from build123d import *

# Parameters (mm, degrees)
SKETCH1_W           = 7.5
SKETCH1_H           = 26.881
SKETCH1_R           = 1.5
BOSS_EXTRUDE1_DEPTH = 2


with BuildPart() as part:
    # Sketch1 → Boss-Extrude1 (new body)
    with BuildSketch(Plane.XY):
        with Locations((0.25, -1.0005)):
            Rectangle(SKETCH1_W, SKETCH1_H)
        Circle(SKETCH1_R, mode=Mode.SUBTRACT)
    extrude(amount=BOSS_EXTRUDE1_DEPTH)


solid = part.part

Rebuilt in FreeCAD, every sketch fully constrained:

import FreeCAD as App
import Part
import Sketcher
Q = App.Units.Quantity


def add_polygon(sketch, points):
    """Adds a closed chain of lines whose ends are joined by coincident constraints."""
    first, n = sketch.GeometryCount, len(points)
    for a, b in zip(points, points[1:] + points[:1]):
        sketch.addGeometry(Part.LineSegment(App.Vector(*a, 0), App.Vector(*b, 0)), False)
    for i in range(n):
        sketch.addConstraint(Sketcher.Constraint("Coincident", first + i, 2, first + (i + 1) % n, 1))

doc = App.newDocument("Part")
body = doc.addObject("PartDesign::Body", "Body")

sketch1 = body.newObject("Sketcher::SketchObject", "Sketch")
sketch1.AttachmentSupport = (doc.getObject("XY_Plane"), [""])
sketch1.MapMode = "FlatFace"
add_polygon(sketch1, [(-3.5, 12.4), (-3.5, -14.4), (4, -14.4), (4, 12.4)])
sketch1.addGeometry(Part.Circle(App.Vector(0, 0, 0), App.Vector(0, 0, 1), 1.5), False)
sketch1.addConstraint([
    Sketcher.Constraint("Vertical", 0),
    Sketcher.Constraint("Horizontal", 1),
    Sketcher.Constraint("Vertical", 2),
    Sketcher.Constraint("Horizontal", 3),
    Sketcher.Constraint("Coincident", 4, 3, -1, 1),
    Sketcher.Constraint("Diameter", 4, Q("3 mm")),
    Sketcher.Constraint("DistanceX", 1, 1, 1, 2, Q("7.5 mm")),
    Sketcher.Constraint("DistanceX", -1, 1, 1, 2, Q("4 mm")),
    Sketcher.Constraint("DistanceY", 0, 2, 0, 1, Q("26.881 mm")),
    Sketcher.Constraint("DistanceY", -1, 1, 2, 2, Q("12.44 mm")),
])
pad1 = body.newObject("PartDesign::Pad", "Pad")
pad1.Profile = sketch1
pad1.Length = 2

doc.recompute()
